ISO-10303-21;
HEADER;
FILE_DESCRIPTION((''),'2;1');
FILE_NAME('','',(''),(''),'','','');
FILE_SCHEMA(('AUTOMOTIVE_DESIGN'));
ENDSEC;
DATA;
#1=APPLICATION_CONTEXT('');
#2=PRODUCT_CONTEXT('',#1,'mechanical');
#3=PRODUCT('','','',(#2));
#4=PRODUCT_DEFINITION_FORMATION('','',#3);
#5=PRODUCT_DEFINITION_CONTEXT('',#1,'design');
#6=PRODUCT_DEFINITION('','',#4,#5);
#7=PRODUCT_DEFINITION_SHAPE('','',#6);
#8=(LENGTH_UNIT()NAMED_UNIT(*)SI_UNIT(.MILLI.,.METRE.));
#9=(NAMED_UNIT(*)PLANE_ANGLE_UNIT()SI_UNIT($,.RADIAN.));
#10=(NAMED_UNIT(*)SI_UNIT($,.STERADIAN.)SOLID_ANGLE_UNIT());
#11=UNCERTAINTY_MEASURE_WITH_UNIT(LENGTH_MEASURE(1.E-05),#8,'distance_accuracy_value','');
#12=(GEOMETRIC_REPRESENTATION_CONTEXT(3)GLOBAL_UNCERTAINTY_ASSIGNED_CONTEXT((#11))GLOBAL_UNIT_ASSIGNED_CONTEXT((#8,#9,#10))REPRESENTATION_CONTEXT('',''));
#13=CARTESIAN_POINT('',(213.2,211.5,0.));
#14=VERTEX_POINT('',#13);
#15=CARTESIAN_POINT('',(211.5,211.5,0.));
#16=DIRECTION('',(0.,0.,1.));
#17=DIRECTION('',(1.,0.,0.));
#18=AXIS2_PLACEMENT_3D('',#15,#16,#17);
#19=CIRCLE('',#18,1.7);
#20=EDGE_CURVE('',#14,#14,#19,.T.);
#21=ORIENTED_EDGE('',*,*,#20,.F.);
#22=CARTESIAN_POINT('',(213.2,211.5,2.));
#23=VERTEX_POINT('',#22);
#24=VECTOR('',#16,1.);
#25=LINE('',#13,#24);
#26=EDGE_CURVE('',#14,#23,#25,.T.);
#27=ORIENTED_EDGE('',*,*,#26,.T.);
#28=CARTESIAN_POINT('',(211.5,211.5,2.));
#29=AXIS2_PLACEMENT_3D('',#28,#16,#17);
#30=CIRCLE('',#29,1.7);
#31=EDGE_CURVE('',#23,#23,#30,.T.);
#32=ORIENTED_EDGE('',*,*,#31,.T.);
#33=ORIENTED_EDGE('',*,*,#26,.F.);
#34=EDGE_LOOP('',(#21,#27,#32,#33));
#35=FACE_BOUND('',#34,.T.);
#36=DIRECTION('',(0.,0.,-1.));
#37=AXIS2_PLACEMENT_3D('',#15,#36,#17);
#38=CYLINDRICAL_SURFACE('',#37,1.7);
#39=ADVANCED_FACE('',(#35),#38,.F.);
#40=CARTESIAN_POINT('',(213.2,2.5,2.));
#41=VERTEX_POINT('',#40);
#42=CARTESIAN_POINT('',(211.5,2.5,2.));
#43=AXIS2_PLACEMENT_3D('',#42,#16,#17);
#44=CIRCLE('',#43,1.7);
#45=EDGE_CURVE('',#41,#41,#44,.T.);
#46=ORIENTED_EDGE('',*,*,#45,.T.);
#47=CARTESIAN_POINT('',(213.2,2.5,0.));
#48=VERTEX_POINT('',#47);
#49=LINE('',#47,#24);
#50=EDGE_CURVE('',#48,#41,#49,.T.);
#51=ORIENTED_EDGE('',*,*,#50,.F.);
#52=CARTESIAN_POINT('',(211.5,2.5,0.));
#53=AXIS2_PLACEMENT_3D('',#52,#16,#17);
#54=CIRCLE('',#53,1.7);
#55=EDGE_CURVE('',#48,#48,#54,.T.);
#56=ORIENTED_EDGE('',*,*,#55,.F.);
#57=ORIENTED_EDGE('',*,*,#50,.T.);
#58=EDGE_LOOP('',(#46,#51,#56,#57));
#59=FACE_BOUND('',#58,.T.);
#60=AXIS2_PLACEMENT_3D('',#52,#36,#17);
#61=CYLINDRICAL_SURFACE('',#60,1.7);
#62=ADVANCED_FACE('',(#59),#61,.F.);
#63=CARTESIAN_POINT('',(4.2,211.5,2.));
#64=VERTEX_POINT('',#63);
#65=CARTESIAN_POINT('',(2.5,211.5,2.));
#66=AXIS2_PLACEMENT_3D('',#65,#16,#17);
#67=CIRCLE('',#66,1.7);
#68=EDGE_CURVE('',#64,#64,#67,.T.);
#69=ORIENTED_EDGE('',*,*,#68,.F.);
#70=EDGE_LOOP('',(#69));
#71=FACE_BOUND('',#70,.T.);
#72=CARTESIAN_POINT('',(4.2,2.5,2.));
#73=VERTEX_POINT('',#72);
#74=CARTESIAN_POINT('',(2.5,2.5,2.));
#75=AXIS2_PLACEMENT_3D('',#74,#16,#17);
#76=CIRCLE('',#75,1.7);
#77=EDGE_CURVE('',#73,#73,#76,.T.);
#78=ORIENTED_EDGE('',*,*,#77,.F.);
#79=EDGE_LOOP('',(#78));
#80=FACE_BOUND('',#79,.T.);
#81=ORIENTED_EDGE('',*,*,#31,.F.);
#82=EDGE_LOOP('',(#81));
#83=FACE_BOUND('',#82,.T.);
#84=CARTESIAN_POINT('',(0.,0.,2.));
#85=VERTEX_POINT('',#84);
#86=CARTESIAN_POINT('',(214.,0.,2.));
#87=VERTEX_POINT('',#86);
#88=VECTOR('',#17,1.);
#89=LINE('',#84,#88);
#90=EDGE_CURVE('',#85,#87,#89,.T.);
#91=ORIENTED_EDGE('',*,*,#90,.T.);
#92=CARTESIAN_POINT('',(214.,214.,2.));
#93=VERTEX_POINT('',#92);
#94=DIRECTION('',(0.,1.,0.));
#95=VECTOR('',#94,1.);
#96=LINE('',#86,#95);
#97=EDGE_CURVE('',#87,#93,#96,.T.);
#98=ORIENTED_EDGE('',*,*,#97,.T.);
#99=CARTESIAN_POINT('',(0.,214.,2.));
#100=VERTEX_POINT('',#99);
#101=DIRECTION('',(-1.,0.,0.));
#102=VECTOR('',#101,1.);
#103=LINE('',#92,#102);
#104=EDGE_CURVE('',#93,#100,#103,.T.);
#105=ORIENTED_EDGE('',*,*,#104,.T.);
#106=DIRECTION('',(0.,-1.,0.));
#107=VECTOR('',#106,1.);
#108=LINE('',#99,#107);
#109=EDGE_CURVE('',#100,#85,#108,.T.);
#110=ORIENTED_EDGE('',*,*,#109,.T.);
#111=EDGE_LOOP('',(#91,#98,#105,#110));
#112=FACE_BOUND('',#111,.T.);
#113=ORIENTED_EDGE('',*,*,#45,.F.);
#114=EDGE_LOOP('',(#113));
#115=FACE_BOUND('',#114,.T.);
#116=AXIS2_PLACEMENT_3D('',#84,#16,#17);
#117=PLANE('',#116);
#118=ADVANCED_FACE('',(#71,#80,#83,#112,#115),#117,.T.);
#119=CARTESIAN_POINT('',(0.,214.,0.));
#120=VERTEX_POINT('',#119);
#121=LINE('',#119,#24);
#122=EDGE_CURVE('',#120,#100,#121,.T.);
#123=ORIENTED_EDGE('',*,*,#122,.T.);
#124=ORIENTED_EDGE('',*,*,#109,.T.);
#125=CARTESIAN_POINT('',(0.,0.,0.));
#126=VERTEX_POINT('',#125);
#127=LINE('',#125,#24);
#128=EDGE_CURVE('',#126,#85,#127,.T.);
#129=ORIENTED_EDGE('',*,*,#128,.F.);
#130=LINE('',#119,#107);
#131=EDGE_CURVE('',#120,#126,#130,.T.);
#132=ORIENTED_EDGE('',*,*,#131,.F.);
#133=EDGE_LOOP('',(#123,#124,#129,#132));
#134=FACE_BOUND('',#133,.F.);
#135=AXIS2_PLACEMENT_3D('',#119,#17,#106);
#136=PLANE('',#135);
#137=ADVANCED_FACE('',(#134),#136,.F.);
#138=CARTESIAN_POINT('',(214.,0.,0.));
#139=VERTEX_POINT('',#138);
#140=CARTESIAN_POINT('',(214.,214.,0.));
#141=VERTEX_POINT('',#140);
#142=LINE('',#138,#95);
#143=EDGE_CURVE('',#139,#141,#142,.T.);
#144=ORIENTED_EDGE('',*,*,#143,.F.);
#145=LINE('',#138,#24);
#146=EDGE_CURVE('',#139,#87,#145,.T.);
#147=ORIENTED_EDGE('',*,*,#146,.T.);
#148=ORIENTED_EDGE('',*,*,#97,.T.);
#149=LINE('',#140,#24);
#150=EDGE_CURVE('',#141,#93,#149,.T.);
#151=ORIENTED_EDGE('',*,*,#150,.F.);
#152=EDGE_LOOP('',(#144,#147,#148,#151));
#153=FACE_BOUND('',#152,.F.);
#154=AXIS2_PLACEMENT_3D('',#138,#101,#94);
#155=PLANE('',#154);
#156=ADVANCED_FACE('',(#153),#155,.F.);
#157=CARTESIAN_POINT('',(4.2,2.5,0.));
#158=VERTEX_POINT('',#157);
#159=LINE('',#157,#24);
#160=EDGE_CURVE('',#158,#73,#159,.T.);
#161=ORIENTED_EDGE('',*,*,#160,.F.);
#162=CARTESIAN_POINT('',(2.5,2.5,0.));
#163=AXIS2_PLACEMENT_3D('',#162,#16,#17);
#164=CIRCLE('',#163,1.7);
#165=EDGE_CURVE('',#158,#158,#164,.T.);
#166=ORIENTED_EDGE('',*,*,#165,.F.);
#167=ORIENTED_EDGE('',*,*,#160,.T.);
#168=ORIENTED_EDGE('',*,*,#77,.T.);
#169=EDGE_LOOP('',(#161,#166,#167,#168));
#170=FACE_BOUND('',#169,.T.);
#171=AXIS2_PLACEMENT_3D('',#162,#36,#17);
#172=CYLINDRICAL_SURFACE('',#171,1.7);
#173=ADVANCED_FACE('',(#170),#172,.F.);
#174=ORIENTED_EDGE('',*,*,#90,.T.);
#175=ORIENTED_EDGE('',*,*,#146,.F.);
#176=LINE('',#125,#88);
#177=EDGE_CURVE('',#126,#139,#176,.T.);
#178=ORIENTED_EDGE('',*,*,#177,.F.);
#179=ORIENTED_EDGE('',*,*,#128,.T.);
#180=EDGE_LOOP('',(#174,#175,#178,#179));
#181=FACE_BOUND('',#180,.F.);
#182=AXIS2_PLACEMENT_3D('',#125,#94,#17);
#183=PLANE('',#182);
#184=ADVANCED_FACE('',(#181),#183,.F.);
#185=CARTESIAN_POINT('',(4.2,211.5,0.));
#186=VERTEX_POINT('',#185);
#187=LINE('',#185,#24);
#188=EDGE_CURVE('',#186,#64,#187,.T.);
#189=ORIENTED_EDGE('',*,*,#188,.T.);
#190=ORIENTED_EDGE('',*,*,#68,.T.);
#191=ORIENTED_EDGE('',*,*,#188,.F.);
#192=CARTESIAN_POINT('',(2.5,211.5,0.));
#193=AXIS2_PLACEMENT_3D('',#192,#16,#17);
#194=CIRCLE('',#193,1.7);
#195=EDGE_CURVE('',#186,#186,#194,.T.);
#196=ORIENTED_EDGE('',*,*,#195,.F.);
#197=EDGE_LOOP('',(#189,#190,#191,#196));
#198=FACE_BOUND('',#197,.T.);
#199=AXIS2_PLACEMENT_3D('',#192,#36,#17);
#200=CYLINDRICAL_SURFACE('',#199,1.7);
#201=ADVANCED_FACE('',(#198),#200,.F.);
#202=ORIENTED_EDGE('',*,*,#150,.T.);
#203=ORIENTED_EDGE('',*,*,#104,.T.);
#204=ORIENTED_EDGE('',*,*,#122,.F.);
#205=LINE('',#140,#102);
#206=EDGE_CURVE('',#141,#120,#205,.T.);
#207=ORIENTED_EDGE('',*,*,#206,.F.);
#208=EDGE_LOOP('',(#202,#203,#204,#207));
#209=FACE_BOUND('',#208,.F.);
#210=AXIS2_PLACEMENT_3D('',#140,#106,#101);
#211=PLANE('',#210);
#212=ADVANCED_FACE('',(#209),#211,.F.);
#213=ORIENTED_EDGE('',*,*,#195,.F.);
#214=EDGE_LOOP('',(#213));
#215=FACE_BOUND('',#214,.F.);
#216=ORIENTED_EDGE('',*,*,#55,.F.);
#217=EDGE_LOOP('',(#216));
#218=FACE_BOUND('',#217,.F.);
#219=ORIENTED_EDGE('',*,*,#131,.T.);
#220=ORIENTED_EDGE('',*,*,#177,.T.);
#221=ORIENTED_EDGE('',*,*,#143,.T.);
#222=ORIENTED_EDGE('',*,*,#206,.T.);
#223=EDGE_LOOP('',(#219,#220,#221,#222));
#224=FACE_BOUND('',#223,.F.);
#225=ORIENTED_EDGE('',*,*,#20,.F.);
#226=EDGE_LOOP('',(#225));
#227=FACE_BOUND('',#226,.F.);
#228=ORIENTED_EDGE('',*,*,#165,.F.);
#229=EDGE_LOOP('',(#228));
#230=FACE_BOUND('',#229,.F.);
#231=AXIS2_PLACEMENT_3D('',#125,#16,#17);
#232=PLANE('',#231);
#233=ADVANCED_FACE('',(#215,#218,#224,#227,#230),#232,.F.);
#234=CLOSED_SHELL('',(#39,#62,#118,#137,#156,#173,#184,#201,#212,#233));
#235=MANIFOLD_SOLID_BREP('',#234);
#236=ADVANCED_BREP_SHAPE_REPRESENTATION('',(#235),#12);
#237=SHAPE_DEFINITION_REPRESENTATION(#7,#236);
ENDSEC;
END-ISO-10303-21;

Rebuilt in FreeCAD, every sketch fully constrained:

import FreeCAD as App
import Part
import Sketcher
from FreeCAD import Vector

doc = App.newDocument("Part")
body = doc.addObject("PartDesign::Body", "Body")

sketch1 = doc.addObject("Sketcher::SketchObject", "Sketch")
body.addObject(sketch1)
sketch1.AttachmentSupport = (doc.XY_Plane, [""])
sketch1.MapMode = "FlatFace"
sketch1.addGeometry([
    Part.LineSegment(Vector(0, 214, 0), Vector(0, 0, 0)),
    Part.LineSegment(Vector(0, 0, 0), Vector(214, 0, 0)),
    Part.LineSegment(Vector(214, 0, 0), Vector(214, 214, 0)),
    Part.LineSegment(Vector(214, 214, 0), Vector(0, 214, 0)),
    Part.Circle(Vector(2.5, 2.5, 0), Vector(0, 0, 1), 1.7),
    Part.Circle(Vector(211.5, 2.5, 0), Vector(0, 0, 1), 1.7),
    Part.Circle(Vector(2.5, 211.5, 0), Vector(0, 0, 1), 1.7),
    Part.Circle(Vector(211.5, 211.5, 0), Vector(0, 0, 1), 1.7),
], False)
sketch1.addConstraint([
    Sketcher.Constraint("Coincident", 0, 2, 1, 1),
    Sketcher.Constraint("Coincident", 1, 2, 2, 1),
    Sketcher.Constraint("Coincident", 2, 2, 3, 1),
    Sketcher.Constraint("Coincident", 3, 2, 0, 1),
    Sketcher.Constraint("Vertical", 0),
    Sketcher.Constraint("Horizontal", 1),
    Sketcher.Constraint("Vertical", 2),
    Sketcher.Constraint("Horizontal", 3),
    Sketcher.Constraint("Coincident", 0, 2, -1, 1),
    Sketcher.Constraint("Equal", 4, 5),
    Sketcher.Constraint("Equal", 5, 6),
    Sketcher.Constraint("Equal", 6, 7),
    Sketcher.Constraint("Horizontal", 4, 3, 5, 3),
    Sketcher.Constraint("Horizontal", 6, 3, 7, 3),
    Sketcher.Constraint("Vertical", 4, 3, 6, 3),
    Sketcher.Constraint("Vertical", 5, 3, 7, 3),
    Sketcher.Constraint("Equal", 3, 0),
    Sketcher.Constraint("Diameter", 4, 3.4),
    Sketcher.Constraint("DistanceX", 1, 1, 1, 2, 214.0),
    Sketcher.Constraint("DistanceX", 4, 3, 5, 3, 209.0),
    Sketcher.Constraint("DistanceY", 4, 3, 6, 3, 209.0),
    Sketcher.Constraint("DistanceX", -1, 1, 4, 3, 2.5),
    Sketcher.Constraint("DistanceY", -1, 1, 4, 3, 2.5),
])
pad1 = doc.addObject("PartDesign::Pad", "Pad")
body.addObject(pad1)
pad1.Profile = sketch1
pad1.Length = 2

doc.recompute()
